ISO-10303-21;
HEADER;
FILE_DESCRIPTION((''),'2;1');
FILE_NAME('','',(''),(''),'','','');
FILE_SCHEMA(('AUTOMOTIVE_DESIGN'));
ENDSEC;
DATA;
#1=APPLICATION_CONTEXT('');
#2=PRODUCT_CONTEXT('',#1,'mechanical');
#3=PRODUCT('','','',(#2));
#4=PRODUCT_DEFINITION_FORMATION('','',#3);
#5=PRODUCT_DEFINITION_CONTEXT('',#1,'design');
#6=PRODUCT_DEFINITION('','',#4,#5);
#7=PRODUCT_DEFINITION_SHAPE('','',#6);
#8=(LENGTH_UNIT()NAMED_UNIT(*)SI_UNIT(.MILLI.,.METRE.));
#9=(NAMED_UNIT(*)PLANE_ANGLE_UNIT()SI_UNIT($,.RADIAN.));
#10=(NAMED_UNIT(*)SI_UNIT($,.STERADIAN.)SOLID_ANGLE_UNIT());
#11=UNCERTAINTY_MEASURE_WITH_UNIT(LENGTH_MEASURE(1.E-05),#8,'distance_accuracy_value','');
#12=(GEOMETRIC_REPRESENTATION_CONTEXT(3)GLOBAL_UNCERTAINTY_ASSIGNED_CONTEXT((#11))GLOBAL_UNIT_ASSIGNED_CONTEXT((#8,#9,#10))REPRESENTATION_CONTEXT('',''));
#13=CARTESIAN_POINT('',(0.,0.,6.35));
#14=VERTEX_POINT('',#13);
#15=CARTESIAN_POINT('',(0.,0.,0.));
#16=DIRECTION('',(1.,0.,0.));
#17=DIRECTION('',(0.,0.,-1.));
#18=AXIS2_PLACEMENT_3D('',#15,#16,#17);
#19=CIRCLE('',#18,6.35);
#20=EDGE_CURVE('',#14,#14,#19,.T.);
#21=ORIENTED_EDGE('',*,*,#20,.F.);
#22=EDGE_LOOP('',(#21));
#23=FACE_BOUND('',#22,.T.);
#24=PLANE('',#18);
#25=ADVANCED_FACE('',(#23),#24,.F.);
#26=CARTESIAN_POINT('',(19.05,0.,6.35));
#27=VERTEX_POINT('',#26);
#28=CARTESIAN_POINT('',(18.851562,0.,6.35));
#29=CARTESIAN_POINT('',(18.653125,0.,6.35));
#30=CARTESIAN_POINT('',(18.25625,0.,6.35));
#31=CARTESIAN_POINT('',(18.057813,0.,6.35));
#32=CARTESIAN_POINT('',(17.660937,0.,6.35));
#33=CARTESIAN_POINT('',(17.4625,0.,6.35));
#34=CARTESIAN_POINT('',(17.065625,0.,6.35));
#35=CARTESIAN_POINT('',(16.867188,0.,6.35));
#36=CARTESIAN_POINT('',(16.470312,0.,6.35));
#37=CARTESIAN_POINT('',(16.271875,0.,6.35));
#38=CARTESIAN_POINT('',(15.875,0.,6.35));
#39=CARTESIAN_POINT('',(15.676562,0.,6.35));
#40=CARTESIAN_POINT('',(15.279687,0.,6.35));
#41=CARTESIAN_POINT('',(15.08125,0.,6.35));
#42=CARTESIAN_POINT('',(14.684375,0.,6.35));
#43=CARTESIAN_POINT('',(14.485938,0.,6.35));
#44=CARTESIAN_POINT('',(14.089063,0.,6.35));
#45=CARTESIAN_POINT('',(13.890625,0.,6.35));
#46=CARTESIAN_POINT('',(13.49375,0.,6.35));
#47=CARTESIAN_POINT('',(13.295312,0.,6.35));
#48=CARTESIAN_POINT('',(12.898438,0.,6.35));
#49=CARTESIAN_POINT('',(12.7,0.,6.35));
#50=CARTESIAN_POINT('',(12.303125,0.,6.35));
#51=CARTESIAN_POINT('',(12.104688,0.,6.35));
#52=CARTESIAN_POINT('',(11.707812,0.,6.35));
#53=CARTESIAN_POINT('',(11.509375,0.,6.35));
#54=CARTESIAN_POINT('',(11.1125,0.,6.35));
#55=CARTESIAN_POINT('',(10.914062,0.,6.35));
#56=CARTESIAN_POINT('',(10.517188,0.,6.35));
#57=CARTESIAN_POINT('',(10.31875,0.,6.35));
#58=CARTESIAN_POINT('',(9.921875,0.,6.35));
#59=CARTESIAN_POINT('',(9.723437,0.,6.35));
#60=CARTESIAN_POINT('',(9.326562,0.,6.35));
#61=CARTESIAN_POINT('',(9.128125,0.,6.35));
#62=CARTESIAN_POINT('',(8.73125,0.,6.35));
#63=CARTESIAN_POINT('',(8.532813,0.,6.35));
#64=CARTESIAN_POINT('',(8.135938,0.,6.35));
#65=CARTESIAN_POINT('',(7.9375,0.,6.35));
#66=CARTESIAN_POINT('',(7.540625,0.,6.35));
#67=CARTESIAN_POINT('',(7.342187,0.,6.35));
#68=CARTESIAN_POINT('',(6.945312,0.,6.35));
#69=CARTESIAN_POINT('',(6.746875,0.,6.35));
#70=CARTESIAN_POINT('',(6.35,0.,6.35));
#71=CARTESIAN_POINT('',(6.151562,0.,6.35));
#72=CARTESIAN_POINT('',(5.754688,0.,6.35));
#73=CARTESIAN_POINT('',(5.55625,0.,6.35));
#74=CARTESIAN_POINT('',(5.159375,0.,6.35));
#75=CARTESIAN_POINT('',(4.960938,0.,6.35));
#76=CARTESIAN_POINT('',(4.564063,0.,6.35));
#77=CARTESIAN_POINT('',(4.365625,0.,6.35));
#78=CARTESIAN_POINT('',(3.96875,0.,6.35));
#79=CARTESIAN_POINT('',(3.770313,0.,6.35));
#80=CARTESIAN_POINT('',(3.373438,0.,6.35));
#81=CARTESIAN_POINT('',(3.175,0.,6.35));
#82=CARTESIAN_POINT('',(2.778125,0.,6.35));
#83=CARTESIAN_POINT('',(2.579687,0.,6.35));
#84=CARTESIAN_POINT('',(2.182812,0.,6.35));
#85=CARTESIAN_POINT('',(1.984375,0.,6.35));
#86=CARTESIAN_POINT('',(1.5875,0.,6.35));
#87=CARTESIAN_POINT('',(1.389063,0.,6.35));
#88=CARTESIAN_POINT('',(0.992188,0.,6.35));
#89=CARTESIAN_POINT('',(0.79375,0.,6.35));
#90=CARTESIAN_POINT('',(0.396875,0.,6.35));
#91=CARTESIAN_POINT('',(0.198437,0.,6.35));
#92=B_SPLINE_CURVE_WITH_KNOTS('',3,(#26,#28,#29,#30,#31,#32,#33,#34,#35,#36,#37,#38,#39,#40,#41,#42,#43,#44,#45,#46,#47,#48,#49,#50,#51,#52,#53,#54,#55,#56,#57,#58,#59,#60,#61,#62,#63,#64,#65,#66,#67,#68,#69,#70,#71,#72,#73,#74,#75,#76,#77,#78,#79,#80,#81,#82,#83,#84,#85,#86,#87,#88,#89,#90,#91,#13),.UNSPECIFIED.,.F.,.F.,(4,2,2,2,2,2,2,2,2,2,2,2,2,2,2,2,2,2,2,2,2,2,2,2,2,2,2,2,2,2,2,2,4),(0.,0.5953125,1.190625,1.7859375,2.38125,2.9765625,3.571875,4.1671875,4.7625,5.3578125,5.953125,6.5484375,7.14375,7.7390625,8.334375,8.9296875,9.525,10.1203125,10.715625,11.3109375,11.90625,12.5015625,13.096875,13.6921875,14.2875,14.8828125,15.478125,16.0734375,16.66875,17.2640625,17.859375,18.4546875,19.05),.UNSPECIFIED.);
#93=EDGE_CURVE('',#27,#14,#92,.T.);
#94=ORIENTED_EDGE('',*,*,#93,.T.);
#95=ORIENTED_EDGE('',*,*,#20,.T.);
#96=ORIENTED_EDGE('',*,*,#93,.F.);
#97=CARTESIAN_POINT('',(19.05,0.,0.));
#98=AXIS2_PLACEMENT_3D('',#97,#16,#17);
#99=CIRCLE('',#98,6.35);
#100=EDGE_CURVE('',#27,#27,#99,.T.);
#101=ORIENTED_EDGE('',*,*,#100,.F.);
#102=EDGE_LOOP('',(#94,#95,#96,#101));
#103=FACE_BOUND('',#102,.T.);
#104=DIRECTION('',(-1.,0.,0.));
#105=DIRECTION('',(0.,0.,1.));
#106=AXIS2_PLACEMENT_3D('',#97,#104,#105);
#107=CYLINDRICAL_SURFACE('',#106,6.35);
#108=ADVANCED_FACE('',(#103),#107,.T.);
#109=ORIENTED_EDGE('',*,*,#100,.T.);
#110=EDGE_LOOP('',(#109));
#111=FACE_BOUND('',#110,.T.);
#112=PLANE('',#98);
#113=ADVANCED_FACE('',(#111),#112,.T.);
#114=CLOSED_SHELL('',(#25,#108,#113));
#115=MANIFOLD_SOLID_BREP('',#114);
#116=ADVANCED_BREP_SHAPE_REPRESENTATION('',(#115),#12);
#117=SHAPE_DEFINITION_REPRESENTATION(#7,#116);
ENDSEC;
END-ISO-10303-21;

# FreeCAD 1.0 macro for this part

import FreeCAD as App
import Part
import Sketcher
Q = App.Units.Quantity

doc = App.newDocument("Part")
body = doc.addObject("PartDesign::Body", "Body")

sketch1 = body.newObject("Sketcher::SketchObject", "Sketch")
sketch1.AttachmentSupport = (doc.getObject("YZ_Plane"), [""])
sketch1.MapMode = "FlatFace"
sketch1.addGeometry(Part.Circle(App.Vector(0, 0, 0), App.Vector(0, 0, 1), 6), False)
sketch1.addConstraint([
    Sketcher.Constraint("Coincident", 0, 3, -1, 1),
    Sketcher.Constraint("Diameter", 0, Q("0.5 in")),
])
pad1 = body.newObject("PartDesign::Pad", "Pad")
pad1.Profile = sketch1
pad1.Length = Q("0.75 in")

doc.recompute()
